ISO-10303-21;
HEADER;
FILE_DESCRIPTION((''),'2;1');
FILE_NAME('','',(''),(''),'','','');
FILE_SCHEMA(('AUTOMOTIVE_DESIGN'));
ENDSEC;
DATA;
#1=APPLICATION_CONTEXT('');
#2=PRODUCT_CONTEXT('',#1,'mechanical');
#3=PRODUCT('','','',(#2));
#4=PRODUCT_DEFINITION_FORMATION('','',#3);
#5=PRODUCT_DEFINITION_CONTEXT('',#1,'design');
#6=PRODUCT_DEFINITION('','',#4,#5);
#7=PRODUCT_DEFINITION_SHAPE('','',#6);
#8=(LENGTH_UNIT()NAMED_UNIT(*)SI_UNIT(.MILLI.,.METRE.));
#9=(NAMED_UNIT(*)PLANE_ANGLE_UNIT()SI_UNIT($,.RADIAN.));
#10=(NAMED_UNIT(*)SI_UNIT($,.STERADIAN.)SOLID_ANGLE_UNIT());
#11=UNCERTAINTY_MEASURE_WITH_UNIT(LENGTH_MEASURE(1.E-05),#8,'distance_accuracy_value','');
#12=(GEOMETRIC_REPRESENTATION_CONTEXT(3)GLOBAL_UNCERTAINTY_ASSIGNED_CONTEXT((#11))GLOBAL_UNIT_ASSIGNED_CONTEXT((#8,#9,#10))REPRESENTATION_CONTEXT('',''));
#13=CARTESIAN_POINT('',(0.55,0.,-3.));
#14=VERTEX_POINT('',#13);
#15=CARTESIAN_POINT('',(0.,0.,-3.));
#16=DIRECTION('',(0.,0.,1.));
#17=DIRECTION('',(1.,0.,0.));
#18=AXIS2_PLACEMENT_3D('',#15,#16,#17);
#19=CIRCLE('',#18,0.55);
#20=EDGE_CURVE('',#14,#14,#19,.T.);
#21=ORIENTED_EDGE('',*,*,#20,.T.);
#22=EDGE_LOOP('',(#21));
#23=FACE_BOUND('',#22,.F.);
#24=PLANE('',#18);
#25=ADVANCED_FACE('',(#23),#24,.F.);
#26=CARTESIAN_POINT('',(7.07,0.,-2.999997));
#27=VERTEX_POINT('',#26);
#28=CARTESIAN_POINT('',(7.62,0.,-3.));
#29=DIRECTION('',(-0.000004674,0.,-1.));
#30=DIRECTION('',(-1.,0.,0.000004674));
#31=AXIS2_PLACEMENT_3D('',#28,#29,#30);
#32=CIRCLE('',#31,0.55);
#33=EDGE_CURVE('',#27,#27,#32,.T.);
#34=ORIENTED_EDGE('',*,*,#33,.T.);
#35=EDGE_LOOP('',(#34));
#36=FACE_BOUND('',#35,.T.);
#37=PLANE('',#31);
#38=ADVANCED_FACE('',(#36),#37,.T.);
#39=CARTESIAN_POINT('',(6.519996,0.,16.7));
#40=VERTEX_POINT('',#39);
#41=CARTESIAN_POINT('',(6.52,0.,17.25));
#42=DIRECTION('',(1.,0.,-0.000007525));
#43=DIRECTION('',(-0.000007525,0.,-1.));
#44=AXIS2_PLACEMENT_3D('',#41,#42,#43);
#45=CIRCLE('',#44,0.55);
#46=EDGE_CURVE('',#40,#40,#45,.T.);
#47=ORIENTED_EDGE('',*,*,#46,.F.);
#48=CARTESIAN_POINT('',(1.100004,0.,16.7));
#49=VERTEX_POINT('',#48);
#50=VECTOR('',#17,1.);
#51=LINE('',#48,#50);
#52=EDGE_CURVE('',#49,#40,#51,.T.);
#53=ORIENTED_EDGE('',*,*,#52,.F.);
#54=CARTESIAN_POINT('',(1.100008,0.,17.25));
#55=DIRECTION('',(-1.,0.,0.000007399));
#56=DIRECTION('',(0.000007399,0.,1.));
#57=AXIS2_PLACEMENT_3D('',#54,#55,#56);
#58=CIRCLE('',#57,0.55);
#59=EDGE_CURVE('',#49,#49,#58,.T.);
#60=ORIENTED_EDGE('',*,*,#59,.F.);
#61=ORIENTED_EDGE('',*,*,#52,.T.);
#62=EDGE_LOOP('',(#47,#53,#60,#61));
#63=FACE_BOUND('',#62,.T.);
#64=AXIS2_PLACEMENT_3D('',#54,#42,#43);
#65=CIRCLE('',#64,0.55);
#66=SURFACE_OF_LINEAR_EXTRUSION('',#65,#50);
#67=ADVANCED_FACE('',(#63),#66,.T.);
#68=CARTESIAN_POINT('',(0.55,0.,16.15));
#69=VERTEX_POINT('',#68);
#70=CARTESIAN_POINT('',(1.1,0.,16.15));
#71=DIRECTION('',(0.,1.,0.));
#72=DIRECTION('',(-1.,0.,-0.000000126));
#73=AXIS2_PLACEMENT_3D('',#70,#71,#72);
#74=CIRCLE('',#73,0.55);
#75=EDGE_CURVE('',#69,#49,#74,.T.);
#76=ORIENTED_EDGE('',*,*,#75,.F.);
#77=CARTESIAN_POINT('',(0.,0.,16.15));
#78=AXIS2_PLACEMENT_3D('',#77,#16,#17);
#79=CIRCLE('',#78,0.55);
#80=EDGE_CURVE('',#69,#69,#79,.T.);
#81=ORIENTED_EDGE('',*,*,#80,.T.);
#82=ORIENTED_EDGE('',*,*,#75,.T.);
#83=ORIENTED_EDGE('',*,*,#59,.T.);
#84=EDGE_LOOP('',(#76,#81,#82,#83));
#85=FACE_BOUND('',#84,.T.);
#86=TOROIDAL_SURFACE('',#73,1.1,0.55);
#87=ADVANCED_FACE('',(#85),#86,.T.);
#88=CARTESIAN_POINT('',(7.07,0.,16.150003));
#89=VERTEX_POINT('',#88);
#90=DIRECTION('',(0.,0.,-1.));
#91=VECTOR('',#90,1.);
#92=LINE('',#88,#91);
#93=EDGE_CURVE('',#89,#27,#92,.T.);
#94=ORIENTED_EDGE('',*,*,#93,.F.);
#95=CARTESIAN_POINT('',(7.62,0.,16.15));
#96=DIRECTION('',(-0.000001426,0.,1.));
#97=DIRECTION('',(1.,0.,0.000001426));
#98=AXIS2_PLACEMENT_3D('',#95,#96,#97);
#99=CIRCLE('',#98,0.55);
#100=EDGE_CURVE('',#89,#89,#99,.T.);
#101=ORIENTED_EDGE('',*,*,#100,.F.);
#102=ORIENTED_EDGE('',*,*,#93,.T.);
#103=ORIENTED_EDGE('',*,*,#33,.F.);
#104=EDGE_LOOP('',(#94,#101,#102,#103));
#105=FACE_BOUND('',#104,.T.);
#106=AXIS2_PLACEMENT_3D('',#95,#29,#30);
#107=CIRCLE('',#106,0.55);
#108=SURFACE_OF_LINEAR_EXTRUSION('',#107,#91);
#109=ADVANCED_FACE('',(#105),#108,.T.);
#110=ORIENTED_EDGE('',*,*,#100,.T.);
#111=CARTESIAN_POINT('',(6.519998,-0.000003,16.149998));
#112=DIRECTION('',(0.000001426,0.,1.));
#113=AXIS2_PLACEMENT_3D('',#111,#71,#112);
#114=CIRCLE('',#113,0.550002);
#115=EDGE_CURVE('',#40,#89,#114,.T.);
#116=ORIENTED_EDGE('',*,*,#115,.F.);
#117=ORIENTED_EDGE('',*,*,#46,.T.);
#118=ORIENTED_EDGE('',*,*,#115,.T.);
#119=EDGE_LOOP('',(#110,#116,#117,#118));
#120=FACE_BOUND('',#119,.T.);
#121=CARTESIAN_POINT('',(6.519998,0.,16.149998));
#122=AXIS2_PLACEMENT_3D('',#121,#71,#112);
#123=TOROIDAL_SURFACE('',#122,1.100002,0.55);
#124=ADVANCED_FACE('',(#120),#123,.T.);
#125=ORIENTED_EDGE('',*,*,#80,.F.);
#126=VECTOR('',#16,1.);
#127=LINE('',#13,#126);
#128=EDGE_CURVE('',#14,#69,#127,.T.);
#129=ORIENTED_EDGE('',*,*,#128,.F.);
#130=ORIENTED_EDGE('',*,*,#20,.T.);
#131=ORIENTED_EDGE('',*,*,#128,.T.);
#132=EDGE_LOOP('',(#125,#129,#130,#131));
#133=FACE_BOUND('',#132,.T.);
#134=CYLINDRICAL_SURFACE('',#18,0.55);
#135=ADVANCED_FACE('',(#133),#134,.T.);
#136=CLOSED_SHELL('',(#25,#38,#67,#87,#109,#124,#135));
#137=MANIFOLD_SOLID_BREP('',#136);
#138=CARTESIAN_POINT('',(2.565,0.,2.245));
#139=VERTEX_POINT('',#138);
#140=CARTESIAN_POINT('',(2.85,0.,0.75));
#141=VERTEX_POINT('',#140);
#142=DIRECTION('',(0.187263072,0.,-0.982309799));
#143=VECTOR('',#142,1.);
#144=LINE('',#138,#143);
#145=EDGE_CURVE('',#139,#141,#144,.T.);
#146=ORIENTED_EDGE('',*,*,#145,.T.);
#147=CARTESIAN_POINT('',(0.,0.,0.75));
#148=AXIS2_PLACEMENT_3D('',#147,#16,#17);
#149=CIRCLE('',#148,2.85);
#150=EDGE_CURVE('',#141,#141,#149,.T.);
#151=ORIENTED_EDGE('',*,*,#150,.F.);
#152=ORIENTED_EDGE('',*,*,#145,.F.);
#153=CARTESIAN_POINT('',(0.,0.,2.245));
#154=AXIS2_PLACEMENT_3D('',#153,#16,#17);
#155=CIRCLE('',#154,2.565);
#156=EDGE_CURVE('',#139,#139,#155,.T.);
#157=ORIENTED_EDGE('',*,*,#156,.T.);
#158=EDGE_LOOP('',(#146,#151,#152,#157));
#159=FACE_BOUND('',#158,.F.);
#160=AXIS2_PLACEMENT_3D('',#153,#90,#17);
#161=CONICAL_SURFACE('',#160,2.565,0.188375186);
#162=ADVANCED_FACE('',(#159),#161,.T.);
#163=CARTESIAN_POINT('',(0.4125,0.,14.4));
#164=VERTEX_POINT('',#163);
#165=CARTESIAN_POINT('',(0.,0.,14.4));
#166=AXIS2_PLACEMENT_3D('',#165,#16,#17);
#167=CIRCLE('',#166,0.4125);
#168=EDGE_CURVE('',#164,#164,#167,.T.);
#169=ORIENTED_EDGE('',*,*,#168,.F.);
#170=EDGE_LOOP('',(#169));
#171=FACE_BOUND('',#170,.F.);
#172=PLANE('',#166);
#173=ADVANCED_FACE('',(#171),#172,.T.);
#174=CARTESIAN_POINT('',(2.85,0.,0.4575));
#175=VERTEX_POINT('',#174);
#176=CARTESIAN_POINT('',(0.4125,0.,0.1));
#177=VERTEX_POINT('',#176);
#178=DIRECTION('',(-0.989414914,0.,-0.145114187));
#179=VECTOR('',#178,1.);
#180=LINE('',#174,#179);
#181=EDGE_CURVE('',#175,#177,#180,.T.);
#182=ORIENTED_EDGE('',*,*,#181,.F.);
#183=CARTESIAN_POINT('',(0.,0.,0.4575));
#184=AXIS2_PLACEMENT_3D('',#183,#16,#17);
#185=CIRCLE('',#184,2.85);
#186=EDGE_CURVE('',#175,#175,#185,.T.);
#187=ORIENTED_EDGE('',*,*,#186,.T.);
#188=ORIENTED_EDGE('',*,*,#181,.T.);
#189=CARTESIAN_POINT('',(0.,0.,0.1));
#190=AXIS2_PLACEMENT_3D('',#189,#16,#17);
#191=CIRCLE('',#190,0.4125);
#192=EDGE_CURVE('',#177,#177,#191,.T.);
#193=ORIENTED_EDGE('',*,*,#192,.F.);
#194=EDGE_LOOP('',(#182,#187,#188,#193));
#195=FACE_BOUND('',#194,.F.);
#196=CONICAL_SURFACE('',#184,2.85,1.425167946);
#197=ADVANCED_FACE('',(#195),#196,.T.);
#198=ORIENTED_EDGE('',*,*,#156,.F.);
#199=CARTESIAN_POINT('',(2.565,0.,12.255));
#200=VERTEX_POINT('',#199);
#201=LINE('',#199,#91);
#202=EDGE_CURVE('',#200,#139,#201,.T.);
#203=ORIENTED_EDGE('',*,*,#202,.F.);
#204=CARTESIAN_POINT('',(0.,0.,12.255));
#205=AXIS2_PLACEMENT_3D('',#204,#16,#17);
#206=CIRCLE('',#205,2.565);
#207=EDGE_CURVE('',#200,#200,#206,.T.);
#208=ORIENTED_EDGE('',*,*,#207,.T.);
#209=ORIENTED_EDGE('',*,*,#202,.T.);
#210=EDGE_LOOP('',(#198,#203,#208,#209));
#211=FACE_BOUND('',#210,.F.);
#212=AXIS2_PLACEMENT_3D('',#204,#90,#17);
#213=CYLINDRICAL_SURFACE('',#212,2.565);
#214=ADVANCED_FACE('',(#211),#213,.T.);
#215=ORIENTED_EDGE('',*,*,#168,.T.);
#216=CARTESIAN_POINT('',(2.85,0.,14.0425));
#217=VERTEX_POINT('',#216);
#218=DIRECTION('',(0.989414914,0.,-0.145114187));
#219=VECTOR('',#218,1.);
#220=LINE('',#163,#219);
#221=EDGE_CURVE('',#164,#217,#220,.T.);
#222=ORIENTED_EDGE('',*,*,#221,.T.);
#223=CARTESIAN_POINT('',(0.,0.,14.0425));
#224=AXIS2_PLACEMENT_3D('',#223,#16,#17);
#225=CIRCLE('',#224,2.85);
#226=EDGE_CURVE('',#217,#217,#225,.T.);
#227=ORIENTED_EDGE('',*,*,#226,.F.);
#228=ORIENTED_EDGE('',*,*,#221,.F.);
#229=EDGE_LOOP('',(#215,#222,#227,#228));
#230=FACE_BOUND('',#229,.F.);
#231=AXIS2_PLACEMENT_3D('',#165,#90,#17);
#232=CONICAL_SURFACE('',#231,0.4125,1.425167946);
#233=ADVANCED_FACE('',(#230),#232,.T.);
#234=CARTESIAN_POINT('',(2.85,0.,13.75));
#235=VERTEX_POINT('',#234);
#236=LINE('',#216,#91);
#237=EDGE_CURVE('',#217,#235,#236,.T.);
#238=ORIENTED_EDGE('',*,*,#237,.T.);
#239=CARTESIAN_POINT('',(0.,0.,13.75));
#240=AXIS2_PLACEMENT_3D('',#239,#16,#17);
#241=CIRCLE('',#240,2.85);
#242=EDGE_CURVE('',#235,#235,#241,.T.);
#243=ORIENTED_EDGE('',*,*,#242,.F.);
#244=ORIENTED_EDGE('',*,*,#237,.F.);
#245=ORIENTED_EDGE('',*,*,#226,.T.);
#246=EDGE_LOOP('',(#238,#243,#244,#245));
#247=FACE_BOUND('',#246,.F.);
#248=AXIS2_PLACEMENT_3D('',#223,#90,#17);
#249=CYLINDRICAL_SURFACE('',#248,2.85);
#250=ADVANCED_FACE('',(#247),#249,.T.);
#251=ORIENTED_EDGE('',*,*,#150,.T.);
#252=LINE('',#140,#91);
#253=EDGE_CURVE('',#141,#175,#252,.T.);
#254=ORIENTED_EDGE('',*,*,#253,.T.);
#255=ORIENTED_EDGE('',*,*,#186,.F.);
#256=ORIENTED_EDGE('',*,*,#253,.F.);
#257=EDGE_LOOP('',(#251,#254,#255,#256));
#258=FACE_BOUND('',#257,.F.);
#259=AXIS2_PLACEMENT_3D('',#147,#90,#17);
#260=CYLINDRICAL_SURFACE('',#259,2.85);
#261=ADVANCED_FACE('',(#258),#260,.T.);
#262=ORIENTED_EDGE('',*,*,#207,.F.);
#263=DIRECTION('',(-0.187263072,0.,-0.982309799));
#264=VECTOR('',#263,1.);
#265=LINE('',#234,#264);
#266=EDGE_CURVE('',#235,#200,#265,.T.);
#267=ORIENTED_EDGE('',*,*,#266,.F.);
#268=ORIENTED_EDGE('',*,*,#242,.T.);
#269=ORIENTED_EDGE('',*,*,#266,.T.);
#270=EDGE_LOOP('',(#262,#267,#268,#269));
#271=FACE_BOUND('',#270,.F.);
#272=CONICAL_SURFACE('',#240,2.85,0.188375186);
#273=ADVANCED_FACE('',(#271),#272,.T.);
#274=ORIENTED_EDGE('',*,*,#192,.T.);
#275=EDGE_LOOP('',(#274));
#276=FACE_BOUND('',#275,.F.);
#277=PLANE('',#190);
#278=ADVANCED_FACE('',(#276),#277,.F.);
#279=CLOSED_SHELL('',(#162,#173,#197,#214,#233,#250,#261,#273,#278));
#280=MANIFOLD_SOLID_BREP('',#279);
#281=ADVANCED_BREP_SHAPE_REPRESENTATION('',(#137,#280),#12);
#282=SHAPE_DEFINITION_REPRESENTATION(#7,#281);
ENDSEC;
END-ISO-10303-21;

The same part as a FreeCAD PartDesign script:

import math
import FreeCAD as App
import Part
import Sketcher
from FreeCAD import Vector

doc = App.newDocument("Part")
body = doc.addObject("PartDesign::Body", "Body")

# Sketch on XY plane
sketch1 = body.newObject("Sketcher::SketchObject", "Sketch")
sketch1.AttachmentSupport = (doc.getObject("XY_Plane"), [""])
sketch1.MapMode = "FlatFace"
sketch1.AttachmentOffset = App.Placement(Vector(0, 0, -2), App.Rotation())
sketch1.addGeometry(Part.Circle(Vector(0, 0, 0), Vector(0, 0, 1), 0.55), False)
sketch1.addConstraint([
    Sketcher.Constraint("Coincident", 0, 3, -1, 1),
    Sketcher.Constraint("Diameter", 0, 1.1),
])

# Sketch on XZ plane
sketch2 = body.newObject("Sketcher::SketchObject", "Sketch001")
sketch2.AttachmentSupport = (doc.getObject("XZ_Plane"), [""])
sketch2.MapMode = "FlatFace"
sketch2.addGeometry([
    Part.LineSegment(Vector(0, -3, 0), Vector(0, 16.15, 0)),  # 0
    Part.ArcOfCircle(Part.Circle(Vector(1.1, 16.15, 0), Vector(0, 0, 1), 1.1), math.radians(89.999576), math.radians(180.000007)),  # 1
    Part.LineSegment(Vector(1.100008, 17.25, 0), Vector(6.52, 17.25, 0)),  # 2
    Part.ArcOfCircle(Part.Circle(Vector(6.519998, 16.149998, 0), Vector(0, 0, 1), 1.100002), math.radians(0.000082), math.radians(89.999918)),  # 3
    Part.LineSegment(Vector(7.62, 16.15, 0), Vector(7.62, -3, 0)),  # 4
], False)
sketch2.addConstraint([
    Sketcher.Constraint("Tangent", 0, 2, 1, 2),
    Sketcher.Constraint("Coincident", 1, 1, 2, 1),
    Sketcher.Constraint("Tangent", 2, 2, 3, 2),
    Sketcher.Constraint("Tangent", 3, 1, 4, 1),
    Sketcher.Constraint("Vertical", 0),
    Sketcher.Constraint("Horizontal", 2),
    Sketcher.Constraint("Vertical", 4),
    Sketcher.Constraint("Equal", 1, 3),
    Sketcher.Constraint("PointOnObject", 0, 1, -2),
    Sketcher.Constraint("Horizontal", 0, 1, 4, 2),
    Sketcher.Constraint("Radius", 1, 1.1),
    Sketcher.Constraint("DistanceY", 0, 1, -1, 1, 3.0),
    Sketcher.Constraint("DistanceY", 0, 1, 0, 2, 19.15),
    Sketcher.Constraint("DistanceX", -1, 1, 3, 3, 6.519998),
    Sketcher.Constraint("DistanceX", 2, 1, 2, 2, 5.419992),
])
doc.recompute()

additivepipe = body.newObject("PartDesign::AdditivePipe", "AdditivePipe")
additivepipe.Profile = sketch1
additivepipe.Spine = (sketch2, ["Edge1", "Edge2", "Edge3", "Edge4", "Edge5"])
body2 = doc.addObject("PartDesign::Body", "Body001")

# Sketch on XZ plane
sketch3 = body2.newObject("Sketcher::SketchObject", "Sketch002")
sketch3.AttachmentSupport = (doc.getObject("XZ_Plane001"), [""])
sketch3.MapMode = "FlatFace"
sketch3.addGeometry([
    Part.LineSegment(Vector(0, 14.4, 0), Vector(0, 0.1, 0)),  # 0
    Part.LineSegment(Vector(0, 0.1, 0), Vector(0.4125, 0.1, 0)),  # 1
    Part.LineSegment(Vector(0.4125, 0.1, 0), Vector(2.85, 0.4575, 0)),  # 2
    Part.LineSegment(Vector(2.85, 0.4575, 0), Vector(2.85, 0.75, 0)),  # 3
    Part.LineSegment(Vector(2.85, 0.75, 0), Vector(2.565, 2.245, 0)),  # 4
    Part.LineSegment(Vector(2.565, 2.245, 0), Vector(2.565, 12.255, 0)),  # 5
    Part.LineSegment(Vector(2.565, 12.255, 0), Vector(2.85, 13.75, 0)),  # 6
    Part.LineSegment(Vector(2.85, 13.75, 0), Vector(2.85, 14.0425, 0)),  # 7
    Part.LineSegment(Vector(2.85, 14.0425, 0), Vector(0.4125, 14.4, 0)),  # 8
    Part.LineSegment(Vector(0.4125, 14.4, 0), Vector(0, 14.4, 0)),  # 9
], False)
sketch3.addConstraint([
    Sketcher.Constraint("Coincident", 0, 2, 1, 1),
    Sketcher.Constraint("Coincident", 1, 2, 2, 1),
    Sketcher.Constraint("Coincident", 2, 2, 3, 1),
    Sketcher.Constraint("Coincident", 3, 2, 4, 1),
    Sketcher.Constraint("Coincident", 4, 2, 5, 1),
    Sketcher.Constraint("Coincident", 5, 2, 6, 1),
    Sketcher.Constraint("Coincident", 6, 2, 7, 1),
    Sketcher.Constraint("Coincident", 7, 2, 8, 1),
    Sketcher.Constraint("Coincident", 8, 2, 9, 1),
    Sketcher.Constraint("Coincident", 9, 2, 0, 1),
    Sketcher.Constraint("Vertical", 0),
    Sketcher.Constraint("Horizontal", 1),
    Sketcher.Constraint("Vertical", 3),
    Sketcher.Constraint("Vertical", 5),
    Sketcher.Constraint("Vertical", 7),
    Sketcher.Constraint("Horizontal", 9),
    Sketcher.Constraint("PointOnObject", 0, 2, -2),
    Sketcher.Constraint("Vertical", 3, 2, 6, 2),
    Sketcher.Constraint("Vertical", 1, 2, 8, 2),
    Sketcher.Constraint("Equal", 3, 7),
    Sketcher.Constraint("Equal", 4, 6),
    Sketcher.Constraint("Equal", 2, 8),
    Sketcher.Constraint("DistanceY", 0, 2, 0, 1, 14.3),
    Sketcher.Constraint("DistanceY", 3, 2, 6, 2, 13.0),
    Sketcher.Constraint("DistanceY", 5, 1, 5, 2, 10.01),
    Sketcher.Constraint("DistanceY", -1, 1, 0, 2, 0.1),
    Sketcher.Constraint("DistanceX", -1, 1, 2, 2, 2.85),
    Sketcher.Constraint("DistanceX", 1, 1, 1, 2, 0.4125),
    Sketcher.Constraint("DistanceY", 3, 1, 3, 2, 0.2925),
    Sketcher.Constraint("DistanceX", -1, 1, 4, 2, 2.565),
])
revolution = body2.newObject("PartDesign::Revolution", "Revolution")
revolution.Profile = sketch3
revolution.ReferenceAxis = (sketch3, ["V_Axis"])
revolution.Angle = 360

doc.recompute()
